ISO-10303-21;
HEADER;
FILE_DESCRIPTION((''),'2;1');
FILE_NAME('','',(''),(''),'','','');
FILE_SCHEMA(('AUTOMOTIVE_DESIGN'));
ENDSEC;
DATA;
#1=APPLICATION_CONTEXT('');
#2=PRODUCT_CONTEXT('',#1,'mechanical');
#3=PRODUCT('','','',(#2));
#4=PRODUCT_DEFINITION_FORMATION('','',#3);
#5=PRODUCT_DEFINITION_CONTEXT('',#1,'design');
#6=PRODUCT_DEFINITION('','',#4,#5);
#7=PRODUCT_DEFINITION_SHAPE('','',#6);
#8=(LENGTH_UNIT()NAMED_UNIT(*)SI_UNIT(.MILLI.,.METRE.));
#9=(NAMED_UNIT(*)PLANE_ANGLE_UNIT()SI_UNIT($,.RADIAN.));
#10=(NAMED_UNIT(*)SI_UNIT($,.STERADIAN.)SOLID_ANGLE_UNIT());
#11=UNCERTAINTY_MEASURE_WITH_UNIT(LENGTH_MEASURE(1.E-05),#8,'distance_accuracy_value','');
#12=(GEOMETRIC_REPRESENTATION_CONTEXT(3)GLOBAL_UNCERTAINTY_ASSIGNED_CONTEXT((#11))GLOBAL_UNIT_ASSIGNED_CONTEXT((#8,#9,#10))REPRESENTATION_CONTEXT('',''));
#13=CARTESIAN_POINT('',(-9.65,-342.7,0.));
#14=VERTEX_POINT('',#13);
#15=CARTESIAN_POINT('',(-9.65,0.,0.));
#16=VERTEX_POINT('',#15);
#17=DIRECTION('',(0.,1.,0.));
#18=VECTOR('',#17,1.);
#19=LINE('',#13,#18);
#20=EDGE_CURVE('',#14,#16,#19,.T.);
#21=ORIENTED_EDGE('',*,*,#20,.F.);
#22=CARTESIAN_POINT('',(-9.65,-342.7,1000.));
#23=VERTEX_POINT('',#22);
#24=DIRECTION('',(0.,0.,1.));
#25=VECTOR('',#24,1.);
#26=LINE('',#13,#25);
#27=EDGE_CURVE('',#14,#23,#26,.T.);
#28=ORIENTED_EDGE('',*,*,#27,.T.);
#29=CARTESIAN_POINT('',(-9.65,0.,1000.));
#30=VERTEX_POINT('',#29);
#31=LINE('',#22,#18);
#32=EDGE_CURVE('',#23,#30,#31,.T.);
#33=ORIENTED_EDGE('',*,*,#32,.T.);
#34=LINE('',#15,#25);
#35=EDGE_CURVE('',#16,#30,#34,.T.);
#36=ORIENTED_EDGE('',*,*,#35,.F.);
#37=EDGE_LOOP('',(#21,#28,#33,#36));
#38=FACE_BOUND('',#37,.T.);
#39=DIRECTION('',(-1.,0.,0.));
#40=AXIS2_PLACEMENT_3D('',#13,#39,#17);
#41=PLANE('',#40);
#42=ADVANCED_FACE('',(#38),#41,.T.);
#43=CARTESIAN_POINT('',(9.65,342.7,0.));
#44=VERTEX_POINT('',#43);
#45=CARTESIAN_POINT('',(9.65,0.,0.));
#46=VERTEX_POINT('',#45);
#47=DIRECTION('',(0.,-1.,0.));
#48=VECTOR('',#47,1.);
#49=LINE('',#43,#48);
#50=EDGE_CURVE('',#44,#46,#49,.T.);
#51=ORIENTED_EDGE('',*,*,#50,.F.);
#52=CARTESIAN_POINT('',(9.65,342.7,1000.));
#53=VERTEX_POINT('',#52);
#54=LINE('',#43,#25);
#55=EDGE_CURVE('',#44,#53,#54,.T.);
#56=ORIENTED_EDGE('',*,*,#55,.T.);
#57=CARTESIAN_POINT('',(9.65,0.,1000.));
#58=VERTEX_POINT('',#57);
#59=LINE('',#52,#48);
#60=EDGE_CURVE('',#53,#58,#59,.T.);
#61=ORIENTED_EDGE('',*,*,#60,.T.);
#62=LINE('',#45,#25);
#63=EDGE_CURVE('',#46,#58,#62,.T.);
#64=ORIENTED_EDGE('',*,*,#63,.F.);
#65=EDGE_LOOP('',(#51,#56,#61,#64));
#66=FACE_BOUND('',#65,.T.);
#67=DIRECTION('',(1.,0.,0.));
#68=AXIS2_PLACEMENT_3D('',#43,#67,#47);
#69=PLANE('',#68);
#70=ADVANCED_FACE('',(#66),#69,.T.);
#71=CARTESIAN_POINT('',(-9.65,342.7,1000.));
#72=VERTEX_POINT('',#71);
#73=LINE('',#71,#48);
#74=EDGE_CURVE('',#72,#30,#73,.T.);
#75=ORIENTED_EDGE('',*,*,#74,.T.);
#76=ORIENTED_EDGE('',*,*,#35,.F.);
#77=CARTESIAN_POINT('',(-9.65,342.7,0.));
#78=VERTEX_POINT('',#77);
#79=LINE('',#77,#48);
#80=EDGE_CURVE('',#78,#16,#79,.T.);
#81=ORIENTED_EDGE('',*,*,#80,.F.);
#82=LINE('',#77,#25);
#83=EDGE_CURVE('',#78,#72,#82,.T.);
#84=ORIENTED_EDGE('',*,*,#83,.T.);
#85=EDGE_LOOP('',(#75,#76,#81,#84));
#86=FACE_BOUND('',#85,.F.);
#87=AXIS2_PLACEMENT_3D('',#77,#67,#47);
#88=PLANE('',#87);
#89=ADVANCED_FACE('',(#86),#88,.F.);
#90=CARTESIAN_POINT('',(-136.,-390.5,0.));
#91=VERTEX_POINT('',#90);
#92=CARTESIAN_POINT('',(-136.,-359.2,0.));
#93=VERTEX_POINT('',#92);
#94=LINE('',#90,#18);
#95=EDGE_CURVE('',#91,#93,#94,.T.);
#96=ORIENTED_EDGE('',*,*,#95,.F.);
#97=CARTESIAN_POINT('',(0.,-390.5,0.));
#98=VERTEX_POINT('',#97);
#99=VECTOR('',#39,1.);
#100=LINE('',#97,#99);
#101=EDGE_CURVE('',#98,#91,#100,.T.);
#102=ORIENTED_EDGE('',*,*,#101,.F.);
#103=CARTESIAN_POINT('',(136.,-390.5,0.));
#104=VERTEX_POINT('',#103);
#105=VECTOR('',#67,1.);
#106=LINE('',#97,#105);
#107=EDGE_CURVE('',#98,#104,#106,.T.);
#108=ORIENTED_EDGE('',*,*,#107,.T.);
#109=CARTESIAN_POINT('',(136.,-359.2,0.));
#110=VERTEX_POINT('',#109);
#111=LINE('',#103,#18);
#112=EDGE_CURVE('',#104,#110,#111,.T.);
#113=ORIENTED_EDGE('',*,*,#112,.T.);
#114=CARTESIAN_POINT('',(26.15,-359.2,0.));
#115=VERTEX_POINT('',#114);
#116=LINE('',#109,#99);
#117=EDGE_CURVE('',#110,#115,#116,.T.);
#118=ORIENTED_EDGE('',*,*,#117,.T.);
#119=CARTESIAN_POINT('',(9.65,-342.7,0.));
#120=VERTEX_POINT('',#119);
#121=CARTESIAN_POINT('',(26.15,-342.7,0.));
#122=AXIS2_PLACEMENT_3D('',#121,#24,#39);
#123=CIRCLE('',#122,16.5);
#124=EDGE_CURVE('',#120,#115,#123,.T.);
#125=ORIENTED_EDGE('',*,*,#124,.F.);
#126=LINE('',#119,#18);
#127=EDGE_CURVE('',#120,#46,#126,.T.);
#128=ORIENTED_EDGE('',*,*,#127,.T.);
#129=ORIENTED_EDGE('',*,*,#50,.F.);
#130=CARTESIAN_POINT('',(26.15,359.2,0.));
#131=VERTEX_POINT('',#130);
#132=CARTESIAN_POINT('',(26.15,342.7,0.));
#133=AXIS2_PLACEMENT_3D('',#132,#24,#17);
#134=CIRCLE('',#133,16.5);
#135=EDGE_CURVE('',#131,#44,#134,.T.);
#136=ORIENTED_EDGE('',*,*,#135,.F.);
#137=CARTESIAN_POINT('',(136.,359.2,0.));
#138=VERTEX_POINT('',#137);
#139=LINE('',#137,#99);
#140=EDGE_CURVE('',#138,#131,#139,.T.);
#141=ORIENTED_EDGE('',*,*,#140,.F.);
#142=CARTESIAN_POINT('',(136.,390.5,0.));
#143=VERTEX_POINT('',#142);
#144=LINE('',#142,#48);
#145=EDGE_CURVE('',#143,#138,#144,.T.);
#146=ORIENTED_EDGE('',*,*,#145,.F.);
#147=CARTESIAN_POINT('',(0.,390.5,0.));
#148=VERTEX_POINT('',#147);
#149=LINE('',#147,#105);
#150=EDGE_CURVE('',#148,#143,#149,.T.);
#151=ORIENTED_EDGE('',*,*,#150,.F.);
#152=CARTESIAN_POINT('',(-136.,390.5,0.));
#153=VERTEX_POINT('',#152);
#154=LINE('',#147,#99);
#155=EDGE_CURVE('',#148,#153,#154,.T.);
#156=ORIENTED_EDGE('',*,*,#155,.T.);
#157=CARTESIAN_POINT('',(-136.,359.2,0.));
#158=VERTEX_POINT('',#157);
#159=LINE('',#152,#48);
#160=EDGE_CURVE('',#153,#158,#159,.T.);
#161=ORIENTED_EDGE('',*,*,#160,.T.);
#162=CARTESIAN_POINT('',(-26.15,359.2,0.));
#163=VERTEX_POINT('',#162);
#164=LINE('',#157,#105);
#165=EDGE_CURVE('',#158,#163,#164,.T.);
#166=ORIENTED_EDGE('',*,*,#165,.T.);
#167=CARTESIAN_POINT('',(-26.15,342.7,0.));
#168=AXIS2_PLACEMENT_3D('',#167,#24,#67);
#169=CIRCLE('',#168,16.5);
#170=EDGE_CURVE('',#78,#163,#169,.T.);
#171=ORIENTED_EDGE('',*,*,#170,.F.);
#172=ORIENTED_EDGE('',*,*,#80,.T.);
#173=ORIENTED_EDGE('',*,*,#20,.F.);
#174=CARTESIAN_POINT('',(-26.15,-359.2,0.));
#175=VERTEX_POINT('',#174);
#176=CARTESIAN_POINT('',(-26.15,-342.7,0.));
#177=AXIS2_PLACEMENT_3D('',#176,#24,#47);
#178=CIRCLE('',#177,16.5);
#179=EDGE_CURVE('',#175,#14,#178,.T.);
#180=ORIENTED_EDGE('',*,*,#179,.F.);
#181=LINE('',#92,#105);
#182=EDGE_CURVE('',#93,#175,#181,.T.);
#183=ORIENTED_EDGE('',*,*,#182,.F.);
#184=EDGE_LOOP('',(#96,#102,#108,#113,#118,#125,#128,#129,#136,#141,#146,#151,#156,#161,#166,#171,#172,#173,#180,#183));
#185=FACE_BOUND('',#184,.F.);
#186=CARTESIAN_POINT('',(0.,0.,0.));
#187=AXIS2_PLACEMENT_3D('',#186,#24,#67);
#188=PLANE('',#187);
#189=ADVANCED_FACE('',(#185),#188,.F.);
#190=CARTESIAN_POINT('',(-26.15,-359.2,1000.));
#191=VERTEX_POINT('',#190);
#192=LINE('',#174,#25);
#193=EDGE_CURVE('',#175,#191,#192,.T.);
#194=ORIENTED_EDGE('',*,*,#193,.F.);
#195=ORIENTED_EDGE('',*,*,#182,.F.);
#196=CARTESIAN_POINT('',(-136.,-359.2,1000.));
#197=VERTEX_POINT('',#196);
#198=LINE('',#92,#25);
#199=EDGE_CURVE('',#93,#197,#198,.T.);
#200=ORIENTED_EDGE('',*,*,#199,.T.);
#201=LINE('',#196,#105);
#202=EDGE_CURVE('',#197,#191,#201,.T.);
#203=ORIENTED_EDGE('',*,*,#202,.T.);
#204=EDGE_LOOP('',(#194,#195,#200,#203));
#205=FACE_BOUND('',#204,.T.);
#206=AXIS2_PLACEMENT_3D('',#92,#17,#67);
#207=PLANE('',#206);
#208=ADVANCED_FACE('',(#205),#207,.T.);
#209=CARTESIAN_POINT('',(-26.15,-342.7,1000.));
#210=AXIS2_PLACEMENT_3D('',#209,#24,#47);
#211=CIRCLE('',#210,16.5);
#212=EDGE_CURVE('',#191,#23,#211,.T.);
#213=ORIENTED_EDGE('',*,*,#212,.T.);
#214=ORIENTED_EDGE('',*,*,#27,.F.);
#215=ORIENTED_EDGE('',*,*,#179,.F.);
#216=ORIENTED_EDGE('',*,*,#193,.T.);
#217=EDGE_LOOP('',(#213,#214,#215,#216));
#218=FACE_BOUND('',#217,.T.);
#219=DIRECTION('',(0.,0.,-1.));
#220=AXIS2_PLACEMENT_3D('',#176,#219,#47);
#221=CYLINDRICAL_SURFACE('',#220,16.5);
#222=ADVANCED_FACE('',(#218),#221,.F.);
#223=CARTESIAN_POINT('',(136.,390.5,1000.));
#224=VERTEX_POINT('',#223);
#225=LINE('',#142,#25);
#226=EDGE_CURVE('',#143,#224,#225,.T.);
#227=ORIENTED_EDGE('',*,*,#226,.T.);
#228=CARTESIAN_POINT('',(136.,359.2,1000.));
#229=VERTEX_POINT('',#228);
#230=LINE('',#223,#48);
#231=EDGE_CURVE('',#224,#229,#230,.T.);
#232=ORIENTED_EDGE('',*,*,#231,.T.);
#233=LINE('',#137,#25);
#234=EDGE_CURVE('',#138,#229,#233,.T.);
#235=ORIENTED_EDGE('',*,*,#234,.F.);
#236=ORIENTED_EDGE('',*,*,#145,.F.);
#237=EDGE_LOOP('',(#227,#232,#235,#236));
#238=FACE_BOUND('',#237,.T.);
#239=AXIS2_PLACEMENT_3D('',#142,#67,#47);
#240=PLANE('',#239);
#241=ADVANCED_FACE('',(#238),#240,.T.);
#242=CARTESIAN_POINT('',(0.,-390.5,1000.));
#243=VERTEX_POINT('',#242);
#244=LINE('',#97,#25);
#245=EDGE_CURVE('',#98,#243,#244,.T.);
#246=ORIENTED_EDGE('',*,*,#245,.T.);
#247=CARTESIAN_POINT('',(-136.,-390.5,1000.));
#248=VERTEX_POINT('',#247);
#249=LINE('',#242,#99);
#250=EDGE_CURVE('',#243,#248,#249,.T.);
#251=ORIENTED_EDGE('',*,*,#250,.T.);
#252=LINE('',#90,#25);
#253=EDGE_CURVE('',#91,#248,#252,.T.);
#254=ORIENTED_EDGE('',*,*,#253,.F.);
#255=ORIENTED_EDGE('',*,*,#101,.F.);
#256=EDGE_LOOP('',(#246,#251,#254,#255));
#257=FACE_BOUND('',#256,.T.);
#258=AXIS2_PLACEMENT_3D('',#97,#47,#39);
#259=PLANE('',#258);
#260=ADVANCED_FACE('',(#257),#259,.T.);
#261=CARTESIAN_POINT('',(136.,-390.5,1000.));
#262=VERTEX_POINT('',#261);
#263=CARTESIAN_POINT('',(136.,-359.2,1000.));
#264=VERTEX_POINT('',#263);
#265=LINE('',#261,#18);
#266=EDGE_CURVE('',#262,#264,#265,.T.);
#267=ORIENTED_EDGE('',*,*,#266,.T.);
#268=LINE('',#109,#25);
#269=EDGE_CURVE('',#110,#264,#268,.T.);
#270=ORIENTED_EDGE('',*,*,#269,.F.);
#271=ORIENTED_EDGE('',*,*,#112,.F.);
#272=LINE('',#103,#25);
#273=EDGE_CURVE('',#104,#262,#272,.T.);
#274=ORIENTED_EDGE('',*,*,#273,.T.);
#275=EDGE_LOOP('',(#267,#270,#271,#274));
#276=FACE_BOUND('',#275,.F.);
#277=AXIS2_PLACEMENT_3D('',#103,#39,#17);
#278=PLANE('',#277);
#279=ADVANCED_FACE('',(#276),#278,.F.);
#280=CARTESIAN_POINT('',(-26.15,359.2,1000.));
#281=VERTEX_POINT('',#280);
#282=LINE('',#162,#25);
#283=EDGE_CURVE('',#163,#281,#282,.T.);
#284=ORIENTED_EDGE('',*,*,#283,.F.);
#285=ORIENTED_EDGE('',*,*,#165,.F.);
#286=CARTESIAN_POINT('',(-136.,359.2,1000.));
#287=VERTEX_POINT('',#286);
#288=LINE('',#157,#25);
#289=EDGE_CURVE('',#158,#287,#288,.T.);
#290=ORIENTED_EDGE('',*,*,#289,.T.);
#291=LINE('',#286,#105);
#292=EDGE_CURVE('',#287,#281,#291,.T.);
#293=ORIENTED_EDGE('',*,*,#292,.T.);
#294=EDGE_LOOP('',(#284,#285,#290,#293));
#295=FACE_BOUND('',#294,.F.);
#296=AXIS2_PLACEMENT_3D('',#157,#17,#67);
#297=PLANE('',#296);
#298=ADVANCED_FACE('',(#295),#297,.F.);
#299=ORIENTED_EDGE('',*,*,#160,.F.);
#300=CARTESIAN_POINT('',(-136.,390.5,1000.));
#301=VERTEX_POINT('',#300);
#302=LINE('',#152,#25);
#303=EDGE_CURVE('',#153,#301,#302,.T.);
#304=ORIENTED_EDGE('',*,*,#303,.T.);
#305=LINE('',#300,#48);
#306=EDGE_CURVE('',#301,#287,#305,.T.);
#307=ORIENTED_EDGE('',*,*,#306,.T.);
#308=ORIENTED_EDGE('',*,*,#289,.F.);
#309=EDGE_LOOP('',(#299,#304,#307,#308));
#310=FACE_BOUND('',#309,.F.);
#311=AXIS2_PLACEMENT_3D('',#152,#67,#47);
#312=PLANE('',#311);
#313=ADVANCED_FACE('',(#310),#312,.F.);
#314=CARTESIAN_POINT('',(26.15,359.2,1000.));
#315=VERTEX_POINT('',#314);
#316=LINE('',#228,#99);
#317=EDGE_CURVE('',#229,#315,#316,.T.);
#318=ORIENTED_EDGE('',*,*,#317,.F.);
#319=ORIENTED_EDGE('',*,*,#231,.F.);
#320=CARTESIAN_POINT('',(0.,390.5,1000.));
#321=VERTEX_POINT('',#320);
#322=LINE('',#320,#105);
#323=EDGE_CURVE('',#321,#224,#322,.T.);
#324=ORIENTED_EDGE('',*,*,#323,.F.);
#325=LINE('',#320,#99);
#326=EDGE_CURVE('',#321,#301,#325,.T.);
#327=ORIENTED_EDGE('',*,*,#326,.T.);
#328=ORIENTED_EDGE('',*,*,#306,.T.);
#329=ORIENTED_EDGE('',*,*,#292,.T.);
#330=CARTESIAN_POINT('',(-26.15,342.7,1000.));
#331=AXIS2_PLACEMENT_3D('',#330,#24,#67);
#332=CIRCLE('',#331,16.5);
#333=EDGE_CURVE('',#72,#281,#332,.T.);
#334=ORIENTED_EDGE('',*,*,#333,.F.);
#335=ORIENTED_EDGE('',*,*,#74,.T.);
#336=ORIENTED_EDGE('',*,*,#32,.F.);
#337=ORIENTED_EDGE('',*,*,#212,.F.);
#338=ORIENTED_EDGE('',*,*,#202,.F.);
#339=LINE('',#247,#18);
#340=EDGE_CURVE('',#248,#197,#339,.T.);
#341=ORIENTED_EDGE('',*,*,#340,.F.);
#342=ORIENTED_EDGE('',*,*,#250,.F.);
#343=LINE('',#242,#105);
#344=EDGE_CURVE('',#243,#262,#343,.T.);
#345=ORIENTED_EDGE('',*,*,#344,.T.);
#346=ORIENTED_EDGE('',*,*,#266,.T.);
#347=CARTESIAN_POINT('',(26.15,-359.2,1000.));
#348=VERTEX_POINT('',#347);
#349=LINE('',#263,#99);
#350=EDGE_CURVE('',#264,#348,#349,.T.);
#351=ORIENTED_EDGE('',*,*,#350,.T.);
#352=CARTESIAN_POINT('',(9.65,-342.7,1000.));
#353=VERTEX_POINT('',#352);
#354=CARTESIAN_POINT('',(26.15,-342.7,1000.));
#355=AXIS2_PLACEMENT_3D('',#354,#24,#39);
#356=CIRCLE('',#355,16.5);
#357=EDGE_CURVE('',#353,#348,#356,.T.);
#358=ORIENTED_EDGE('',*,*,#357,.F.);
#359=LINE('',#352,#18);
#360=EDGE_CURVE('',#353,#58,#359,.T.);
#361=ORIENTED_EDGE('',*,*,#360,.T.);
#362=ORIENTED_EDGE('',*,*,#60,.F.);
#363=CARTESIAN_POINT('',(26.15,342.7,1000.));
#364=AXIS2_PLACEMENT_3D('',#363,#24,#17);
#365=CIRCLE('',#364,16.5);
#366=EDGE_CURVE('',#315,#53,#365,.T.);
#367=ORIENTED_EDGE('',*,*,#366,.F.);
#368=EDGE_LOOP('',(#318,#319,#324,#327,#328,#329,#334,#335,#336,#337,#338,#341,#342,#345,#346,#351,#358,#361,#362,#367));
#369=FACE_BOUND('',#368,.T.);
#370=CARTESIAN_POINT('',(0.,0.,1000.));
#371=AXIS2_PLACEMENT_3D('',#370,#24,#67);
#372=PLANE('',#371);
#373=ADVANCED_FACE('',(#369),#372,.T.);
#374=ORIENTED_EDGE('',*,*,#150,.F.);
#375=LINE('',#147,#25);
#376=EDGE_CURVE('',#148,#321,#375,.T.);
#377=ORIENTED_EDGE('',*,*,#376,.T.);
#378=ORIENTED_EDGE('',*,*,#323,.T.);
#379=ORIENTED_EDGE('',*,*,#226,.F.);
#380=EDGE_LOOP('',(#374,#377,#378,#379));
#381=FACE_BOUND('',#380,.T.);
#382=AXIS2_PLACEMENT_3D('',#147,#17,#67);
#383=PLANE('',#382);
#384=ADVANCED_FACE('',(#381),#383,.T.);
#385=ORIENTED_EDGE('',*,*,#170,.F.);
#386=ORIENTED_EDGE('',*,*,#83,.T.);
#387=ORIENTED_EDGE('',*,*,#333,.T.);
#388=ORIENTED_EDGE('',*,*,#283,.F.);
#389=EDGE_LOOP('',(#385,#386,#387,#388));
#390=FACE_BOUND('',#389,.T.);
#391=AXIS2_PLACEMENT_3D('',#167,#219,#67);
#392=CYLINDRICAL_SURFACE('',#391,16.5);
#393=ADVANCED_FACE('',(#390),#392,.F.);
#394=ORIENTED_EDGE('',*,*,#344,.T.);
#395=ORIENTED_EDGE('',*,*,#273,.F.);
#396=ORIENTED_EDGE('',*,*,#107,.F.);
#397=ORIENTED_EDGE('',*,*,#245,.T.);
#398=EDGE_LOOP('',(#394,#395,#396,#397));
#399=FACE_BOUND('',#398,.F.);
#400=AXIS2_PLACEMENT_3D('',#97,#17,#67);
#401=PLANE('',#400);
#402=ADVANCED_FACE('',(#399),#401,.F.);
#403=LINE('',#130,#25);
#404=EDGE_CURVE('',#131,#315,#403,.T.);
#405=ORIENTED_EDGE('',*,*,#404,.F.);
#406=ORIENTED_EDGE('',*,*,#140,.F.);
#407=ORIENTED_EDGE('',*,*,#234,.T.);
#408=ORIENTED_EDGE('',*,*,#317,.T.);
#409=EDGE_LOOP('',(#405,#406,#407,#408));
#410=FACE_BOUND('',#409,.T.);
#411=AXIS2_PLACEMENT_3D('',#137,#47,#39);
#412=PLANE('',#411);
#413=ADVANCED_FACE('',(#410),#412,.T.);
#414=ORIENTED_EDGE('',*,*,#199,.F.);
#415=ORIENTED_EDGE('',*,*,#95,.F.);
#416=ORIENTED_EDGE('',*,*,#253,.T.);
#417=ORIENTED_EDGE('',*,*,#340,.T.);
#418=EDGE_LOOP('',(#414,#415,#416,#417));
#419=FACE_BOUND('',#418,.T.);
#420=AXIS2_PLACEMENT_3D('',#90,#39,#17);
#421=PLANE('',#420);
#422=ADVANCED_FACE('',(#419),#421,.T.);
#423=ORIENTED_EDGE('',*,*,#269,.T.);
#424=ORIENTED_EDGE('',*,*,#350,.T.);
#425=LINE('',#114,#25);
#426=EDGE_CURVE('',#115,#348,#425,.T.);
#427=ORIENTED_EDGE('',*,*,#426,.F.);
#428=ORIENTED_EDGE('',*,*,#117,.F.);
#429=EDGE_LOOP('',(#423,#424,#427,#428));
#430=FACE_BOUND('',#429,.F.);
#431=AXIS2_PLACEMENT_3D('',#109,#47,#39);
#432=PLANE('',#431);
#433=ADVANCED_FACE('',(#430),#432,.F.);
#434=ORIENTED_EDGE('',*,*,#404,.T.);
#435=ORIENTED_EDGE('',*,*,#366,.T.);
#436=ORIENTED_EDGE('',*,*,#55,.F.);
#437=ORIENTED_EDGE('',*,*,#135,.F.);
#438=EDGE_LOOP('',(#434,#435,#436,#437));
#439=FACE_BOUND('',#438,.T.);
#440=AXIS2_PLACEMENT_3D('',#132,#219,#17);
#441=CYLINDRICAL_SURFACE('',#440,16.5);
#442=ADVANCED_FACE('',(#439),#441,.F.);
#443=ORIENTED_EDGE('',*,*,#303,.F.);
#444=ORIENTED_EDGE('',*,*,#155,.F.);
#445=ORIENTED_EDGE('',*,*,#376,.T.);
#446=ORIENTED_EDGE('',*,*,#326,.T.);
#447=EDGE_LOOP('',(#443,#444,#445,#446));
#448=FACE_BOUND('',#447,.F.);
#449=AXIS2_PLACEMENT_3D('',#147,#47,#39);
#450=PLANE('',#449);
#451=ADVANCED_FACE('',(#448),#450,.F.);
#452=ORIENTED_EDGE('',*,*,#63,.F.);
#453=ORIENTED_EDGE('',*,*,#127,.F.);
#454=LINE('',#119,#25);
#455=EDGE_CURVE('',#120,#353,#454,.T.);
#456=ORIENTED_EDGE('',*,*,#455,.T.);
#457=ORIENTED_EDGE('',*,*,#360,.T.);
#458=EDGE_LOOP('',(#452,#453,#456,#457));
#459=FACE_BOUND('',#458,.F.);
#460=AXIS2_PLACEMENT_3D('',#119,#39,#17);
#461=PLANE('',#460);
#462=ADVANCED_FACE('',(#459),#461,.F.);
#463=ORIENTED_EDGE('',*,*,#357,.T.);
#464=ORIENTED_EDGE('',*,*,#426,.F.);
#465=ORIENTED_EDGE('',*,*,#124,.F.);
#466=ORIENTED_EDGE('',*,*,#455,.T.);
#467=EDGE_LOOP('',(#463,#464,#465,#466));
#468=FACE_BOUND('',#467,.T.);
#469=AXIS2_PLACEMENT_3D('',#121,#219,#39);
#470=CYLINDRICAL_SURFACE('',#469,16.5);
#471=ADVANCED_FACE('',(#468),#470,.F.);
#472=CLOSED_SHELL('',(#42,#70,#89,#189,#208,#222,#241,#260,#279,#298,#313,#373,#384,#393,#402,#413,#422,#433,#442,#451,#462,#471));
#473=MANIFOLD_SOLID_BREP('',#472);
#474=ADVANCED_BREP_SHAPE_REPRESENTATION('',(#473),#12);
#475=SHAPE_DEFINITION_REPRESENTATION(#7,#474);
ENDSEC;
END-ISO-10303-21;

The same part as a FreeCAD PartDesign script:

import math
import FreeCAD as App
import Part
import Sketcher
from FreeCAD import Vector
Q = App.Units.Quantity

doc = App.newDocument("Part")
body = doc.addObject("PartDesign::Body", "Body")

# Sketch on XY plane
sketch1 = doc.addObject("Sketcher::SketchObject", "Sketch")
body.addObject(sketch1)
sketch1.AttachmentSupport = (doc.XY_Plane, [""])
sketch1.MapMode = "FlatFace"
sketch1.addGeometry(Part.LineSegment(Vector(-136, -359, 0), Vector(-136, -390, 0)), False)
sketch1.addGeometry(Part.LineSegment(Vector(-136, -390, 0), Vector(136, -390, 0)), False)
sketch1.addGeometry(Part.LineSegment(Vector(136, -390, 0), Vector(136, -359, 0)), False)
sketch1.addGeometry(Part.LineSegment(Vector(136, -359, 0), Vector(26, -359, 0)), False)
sketch1.addGeometry(Part.ArcOfCircle(Part.Circle(Vector(26, -343, 0), Vector(0, 0, 1), 16), math.radians(180), math.radians(270)), False)
sketch1.addGeometry(Part.LineSegment(Vector(10, -343, 0), Vector(10, 343, 0)), False)
sketch1.addGeometry(Part.ArcOfCircle(Part.Circle(Vector(26, 343, 0), Vector(0, 0, 1), 16), math.radians(90), math.radians(180)), False)
sketch1.addGeometry(Part.LineSegment(Vector(26, 359, 0), Vector(136, 359, 0)), False)
sketch1.addGeometry(Part.LineSegment(Vector(136, 359, 0), Vector(136, 390, 0)), False)
sketch1.addGeometry(Part.LineSegment(Vector(136, 390, 0), Vector(-136, 390, 0)), False)
sketch1.addGeometry(Part.LineSegment(Vector(-136, 390, 0), Vector(-136, 359, 0)), False)
sketch1.addGeometry(Part.LineSegment(Vector(-136, 359, 0), Vector(-26, 359, 0)), False)
sketch1.addGeometry(Part.ArcOfCircle(Part.Circle(Vector(-26, 343, 0), Vector(0, 0, 1), 16), math.radians(0), math.radians(90)), False)
sketch1.addGeometry(Part.LineSegment(Vector(-10, 343, 0), Vector(-10, -343, 0)), False)
sketch1.addGeometry(Part.ArcOfCircle(Part.Circle(Vector(-26, -343, 0), Vector(0, 0, 1), 16), math.radians(-90), math.radians(0)), False)
sketch1.addGeometry(Part.LineSegment(Vector(-26, -359, 0), Vector(-136, -359, 0)), False)
sketch1.addConstraint(Sketcher.Constraint("Coincident", 0, 2, 1, 1))
sketch1.addConstraint(Sketcher.Constraint("Coincident", 1, 2, 2, 1))
sketch1.addConstraint(Sketcher.Constraint("Coincident", 2, 2, 3, 1))
sketch1.addConstraint(Sketcher.Constraint("Tangent", 3, 2, 4, 2))
sketch1.addConstraint(Sketcher.Constraint("Tangent", 4, 1, 5, 1))
sketch1.addConstraint(Sketcher.Constraint("Tangent", 5, 2, 6, 2))
sketch1.addConstraint(Sketcher.Constraint("Tangent", 6, 1, 7, 1))
sketch1.addConstraint(Sketcher.Constraint("Coincident", 7, 2, 8, 1))
sketch1.addConstraint(Sketcher.Constraint("Coincident", 8, 2, 9, 1))
sketch1.addConstraint(Sketcher.Constraint("Coincident", 9, 2, 10, 1))
sketch1.addConstraint(Sketcher.Constraint("Coincident", 10, 2, 11, 1))
sketch1.addConstraint(Sketcher.Constraint("Tangent", 11, 2, 12, 2))
sketch1.addConstraint(Sketcher.Constraint("Tangent", 12, 1, 13, 1))
sketch1.addConstraint(Sketcher.Constraint("Tangent", 13, 2, 14, 2))
sketch1.addConstraint(Sketcher.Constraint("Tangent", 14, 1, 15, 1))
sketch1.addConstraint(Sketcher.Constraint("Coincident", 15, 2, 0, 1))
sketch1.addConstraint(Sketcher.Constraint("Vertical", 0))
sketch1.addConstraint(Sketcher.Constraint("Horizontal", 1))
sketch1.addConstraint(Sketcher.Constraint("Vertical", 2))
sketch1.addConstraint(Sketcher.Constraint("Horizontal", 3))
sketch1.addConstraint(Sketcher.Constraint("Vertical", 5))
sketch1.addConstraint(Sketcher.Constraint("Horizontal", 7))
sketch1.addConstraint(Sketcher.Constraint("Vertical", 8))
sketch1.addConstraint(Sketcher.Constraint("Horizontal", 9))
sketch1.addConstraint(Sketcher.Constraint("Vertical", 10))
sketch1.addConstraint(Sketcher.Constraint("Horizontal", 11))
sketch1.addConstraint(Sketcher.Constraint("Vertical", 13))
sketch1.addConstraint(Sketcher.Constraint("Horizontal", 15))
sketch1.addConstraint(Sketcher.Constraint("Equal", 4, 6))
sketch1.addConstraint(Sketcher.Constraint("Equal", 6, 12))
sketch1.addConstraint(Sketcher.Constraint("Equal", 12, 14))
sketch1.addConstraint(Sketcher.Constraint("Symmetric", 4, 3, 12, 3, -1, 1))
sketch1.addConstraint(Sketcher.Constraint("Symmetric", 0, 2, 8, 2, -1, 1))
sketch1.addConstraint(Sketcher.Constraint("Symmetric", 7, 2, 10, 2, -2))
sketch1.addConstraint(Sketcher.Constraint("Symmetric", 2, 2, 15, 2, -2))
sketch1.addConstraint(Sketcher.Constraint("Radius", 4, Q("16.5 mm")))
sketch1.addConstraint(Sketcher.Constraint("DistanceY", 0, 2, 0, 1, Q("31.3 mm")))
sketch1.addConstraint(Sketcher.Constraint("DistanceX", 0, 2, -1, 1, Q("136 mm")))
sketch1.addConstraint(Sketcher.Constraint("DistanceY", 0, 2, -1, 1, Q("390.5 mm")))
sketch1.addConstraint(Sketcher.Constraint("DistanceX", -1, 1, 4, 1, Q("9.65 mm")))
pad1 = doc.addObject("PartDesign::Pad", "Pad")
body.addObject(pad1)
pad1.Profile = sketch1
pad1.Length = 1000

doc.recompute()
